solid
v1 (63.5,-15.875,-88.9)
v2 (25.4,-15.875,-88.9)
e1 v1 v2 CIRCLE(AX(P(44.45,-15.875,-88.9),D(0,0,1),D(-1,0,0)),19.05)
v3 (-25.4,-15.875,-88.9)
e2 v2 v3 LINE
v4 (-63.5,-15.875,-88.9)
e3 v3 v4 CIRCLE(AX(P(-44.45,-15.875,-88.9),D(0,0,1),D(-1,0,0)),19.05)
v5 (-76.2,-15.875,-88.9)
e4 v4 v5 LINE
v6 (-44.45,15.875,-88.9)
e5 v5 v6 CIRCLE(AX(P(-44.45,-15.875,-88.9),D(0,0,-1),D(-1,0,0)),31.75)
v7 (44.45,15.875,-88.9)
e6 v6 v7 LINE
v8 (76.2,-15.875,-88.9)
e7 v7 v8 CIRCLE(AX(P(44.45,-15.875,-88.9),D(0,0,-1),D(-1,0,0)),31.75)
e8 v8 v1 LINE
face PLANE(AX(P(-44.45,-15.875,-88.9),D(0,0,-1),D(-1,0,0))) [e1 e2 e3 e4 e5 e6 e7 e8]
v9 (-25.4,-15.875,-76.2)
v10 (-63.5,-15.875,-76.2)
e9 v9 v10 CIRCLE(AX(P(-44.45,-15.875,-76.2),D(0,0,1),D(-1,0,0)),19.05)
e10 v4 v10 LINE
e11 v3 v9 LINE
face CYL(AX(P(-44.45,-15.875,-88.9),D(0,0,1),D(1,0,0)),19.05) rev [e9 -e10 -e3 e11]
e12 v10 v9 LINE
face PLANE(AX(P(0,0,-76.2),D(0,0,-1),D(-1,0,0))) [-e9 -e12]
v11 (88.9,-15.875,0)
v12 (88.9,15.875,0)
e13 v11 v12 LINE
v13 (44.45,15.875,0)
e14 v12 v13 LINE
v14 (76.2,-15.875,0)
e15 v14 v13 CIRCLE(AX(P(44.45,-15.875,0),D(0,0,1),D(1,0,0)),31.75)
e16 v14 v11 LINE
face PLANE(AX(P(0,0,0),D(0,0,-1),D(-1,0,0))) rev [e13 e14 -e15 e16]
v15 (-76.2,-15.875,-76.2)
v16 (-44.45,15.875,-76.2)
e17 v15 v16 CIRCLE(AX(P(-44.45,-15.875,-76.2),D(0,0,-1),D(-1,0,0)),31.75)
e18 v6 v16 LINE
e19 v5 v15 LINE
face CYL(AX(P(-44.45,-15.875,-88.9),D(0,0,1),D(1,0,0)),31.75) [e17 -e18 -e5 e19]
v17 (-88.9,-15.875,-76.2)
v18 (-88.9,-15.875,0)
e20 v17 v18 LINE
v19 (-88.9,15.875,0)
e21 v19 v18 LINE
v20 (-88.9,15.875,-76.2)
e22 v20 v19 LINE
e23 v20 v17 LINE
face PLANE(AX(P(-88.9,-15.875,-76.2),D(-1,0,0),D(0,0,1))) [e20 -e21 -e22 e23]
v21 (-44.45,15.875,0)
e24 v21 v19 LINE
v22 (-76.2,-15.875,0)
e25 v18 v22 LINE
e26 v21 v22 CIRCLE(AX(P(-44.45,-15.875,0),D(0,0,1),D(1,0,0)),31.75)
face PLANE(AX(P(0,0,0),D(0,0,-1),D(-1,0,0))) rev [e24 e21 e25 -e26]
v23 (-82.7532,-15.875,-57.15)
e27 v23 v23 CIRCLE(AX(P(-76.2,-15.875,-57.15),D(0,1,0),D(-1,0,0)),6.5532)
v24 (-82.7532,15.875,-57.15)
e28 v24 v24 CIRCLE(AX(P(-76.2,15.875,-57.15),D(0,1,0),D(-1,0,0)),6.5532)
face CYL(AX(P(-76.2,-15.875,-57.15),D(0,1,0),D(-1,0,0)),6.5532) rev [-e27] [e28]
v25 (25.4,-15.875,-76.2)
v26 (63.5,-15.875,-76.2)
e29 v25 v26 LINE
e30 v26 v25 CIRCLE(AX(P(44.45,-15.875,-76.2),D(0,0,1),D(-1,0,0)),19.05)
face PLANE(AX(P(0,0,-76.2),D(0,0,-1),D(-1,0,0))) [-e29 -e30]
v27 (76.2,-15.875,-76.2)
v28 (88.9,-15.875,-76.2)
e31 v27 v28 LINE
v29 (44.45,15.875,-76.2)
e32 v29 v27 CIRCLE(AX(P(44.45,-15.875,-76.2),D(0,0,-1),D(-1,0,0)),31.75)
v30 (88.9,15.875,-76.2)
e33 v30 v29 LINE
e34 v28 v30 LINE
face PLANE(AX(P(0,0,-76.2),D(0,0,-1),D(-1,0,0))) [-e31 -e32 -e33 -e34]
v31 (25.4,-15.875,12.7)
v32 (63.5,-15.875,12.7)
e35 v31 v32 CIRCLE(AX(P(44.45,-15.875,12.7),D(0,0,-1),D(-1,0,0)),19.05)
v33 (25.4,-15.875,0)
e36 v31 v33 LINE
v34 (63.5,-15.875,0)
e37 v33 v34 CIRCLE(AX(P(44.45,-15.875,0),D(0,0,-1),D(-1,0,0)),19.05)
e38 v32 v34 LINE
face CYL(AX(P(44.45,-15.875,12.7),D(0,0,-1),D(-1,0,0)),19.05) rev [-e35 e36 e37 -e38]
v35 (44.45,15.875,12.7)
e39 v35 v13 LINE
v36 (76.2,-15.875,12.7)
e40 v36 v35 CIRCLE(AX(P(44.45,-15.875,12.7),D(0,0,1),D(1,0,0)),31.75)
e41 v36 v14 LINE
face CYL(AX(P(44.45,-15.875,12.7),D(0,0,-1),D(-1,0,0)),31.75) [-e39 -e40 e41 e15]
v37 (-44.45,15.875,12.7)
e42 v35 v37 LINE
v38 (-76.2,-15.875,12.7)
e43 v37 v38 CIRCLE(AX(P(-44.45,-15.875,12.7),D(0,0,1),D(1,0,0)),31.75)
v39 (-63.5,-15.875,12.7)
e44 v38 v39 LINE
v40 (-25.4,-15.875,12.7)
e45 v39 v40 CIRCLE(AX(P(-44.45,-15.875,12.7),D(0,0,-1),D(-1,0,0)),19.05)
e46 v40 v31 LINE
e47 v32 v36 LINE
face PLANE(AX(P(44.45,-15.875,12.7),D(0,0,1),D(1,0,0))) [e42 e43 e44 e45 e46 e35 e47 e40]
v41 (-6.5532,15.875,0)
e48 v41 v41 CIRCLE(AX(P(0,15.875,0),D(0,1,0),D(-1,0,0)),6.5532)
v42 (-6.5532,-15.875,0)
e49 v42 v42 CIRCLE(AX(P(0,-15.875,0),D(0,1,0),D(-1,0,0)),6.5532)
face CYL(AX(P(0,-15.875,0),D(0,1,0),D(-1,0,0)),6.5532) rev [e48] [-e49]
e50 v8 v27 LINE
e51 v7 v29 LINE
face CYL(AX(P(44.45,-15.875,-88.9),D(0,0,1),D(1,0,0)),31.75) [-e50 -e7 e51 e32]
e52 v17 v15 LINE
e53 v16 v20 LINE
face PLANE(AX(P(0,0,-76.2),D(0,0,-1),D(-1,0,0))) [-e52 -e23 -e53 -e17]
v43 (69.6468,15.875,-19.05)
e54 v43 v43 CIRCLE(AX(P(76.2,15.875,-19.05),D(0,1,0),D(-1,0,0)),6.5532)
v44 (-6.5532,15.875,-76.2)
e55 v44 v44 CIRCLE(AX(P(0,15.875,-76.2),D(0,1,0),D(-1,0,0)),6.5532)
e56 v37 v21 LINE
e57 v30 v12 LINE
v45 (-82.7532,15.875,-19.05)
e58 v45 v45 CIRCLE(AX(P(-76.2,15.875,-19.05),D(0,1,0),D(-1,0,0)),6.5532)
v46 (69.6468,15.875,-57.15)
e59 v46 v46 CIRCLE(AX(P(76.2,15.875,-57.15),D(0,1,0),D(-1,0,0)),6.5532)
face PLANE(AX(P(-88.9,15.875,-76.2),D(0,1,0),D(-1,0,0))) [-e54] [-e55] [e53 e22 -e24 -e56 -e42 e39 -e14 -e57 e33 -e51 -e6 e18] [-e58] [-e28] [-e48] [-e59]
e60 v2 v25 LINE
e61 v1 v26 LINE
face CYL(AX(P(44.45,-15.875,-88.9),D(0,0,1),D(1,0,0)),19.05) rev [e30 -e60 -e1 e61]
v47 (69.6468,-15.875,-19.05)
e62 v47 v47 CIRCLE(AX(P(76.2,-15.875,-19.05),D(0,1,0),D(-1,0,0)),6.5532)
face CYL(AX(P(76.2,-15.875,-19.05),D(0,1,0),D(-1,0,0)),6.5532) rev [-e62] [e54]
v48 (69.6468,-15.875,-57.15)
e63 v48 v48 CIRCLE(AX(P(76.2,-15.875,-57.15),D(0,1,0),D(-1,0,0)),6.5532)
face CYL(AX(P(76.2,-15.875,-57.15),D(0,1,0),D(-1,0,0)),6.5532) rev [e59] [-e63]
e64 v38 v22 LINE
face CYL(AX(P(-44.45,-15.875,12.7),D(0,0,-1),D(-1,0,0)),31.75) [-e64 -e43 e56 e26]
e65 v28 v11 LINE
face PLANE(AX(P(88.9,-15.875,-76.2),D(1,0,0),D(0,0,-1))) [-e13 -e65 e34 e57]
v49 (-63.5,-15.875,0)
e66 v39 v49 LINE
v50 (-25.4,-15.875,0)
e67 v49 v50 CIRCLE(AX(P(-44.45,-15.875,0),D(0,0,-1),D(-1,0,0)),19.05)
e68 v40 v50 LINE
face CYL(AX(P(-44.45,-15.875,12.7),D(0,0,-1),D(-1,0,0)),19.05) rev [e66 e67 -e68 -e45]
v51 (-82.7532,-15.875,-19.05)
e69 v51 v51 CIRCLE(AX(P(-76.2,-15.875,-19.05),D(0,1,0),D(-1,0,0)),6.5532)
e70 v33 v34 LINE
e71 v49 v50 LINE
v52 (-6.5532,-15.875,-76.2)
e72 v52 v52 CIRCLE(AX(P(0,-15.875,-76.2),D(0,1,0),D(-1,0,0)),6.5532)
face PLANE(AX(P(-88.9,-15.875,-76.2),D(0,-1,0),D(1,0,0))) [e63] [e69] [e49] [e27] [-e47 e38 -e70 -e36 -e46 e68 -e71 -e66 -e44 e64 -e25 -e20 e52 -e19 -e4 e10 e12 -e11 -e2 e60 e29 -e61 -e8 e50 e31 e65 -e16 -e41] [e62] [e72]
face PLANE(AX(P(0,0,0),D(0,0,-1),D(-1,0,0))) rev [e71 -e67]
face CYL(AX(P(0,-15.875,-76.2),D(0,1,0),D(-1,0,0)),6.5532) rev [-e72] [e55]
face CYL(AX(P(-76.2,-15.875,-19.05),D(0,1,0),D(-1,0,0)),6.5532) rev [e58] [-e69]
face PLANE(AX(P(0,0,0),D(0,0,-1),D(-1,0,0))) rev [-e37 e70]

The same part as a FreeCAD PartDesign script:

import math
import FreeCAD as App
import Part
import Sketcher
Q = App.Units.Quantity

doc = App.newDocument("Part")
params = doc.addObject("Spreadsheet::Sheet", "Params")
for row, (alias, value) in enumerate([
    ("sketch1_width", "7 in"),
    ("sketch1_height", "1.25 in"),
    ("pad1_length", "3 in"),
    ("sketch2_width", "2 in"),
    ("sketch2_radius", "1.25 in"),
    ("sketch2_radius2", "0.75 in"),
    ("pad2_length", "0.5 in"),
    ("sketch3_width", "2 in"),
    ("sketch3_radius", "1.25 in"),
    ("sketch3_radius2", "0.75 in"),
    ("pad3_length", "0.5 in"),
    ("sketch4_diameter", "0.516 in"),
], start=1):
    params.set(f"A{row}", alias)
    params.set(f"B{row}", "=" + value)
    params.setAlias(f"B{row}", alias)

body = doc.addObject("PartDesign::Body", "Body")

# Sketch on XY plane
sketch1 = body.newObject("Sketcher::SketchObject", "Sketch")
sketch1.AttachmentSupport = (doc.getObject("XY_Plane"), [""])
sketch1.MapMode = "FlatFace"
sketch1.addGeometry([
    Part.LineSegment(App.Vector(-89, 16, 0), App.Vector(-89, -16, 0)),
    Part.LineSegment(App.Vector(-89, -16, 0), App.Vector(89, -16, 0)),
    Part.LineSegment(App.Vector(89, -16, 0), App.Vector(89, 16, 0)),
    Part.LineSegment(App.Vector(89, 16, 0), App.Vector(-89, 16, 0)),
], False)
sketch1.addConstraint([
    Sketcher.Constraint("Coincident", 0, 2, 1, 1),
    Sketcher.Constraint("Coincident", 1, 2, 2, 1),
    Sketcher.Constraint("Coincident", 2, 2, 3, 1),
    Sketcher.Constraint("Coincident", 3, 2, 0, 1),
    Sketcher.Constraint("Vertical", 0),
    Sketcher.Constraint("Horizontal", 1),
    Sketcher.Constraint("Vertical", 2),
    Sketcher.Constraint("Horizontal", 3),
    Sketcher.Constraint("Symmetric", 0, 2, 2, 2, -1, 1),
    Sketcher.Constraint("DistanceX", 1, 1, 1, 2, Q("7 in")),
    Sketcher.Constraint("DistanceY", 0, 2, 0, 1, Q("1.25 in")),
])
sketch1.setExpression("Constraints[9]", "Params.sketch1_width")
sketch1.setExpression("Constraints[10]", "Params.sketch1_height")
pad1 = body.newObject("PartDesign::Pad", "Pad")
pad1.Profile = sketch1
pad1.setExpression("Length", "Params.pad1_length")
pad1.Reversed = True

# Sketch on XY plane
sketch2 = body.newObject("Sketcher::SketchObject", "Sketch001")
sketch2.AttachmentSupport = (doc.getObject("XY_Plane"), [""])
sketch2.MapMode = "FlatFace"
sketch2.addGeometry([
    Part.LineSegment(App.Vector(44, 16, 0), App.Vector(-44, 16, 0)),  # 0
    Part.ArcOfCircle(Part.Circle(App.Vector(-44, -16, 0), App.Vector(0, 0, 1), 32), math.radians(90), math.radians(180)),  # 1
    Part.LineSegment(App.Vector(-76, -16, 0), App.Vector(-64, -16, 0)),  # 2
    Part.ArcOfCircle(Part.Circle(App.Vector(-44, -16, 0), App.Vector(0, 0, 1), 19), math.radians(0), math.radians(180)),  # 3
    Part.LineSegment(App.Vector(-25, -16, 0), App.Vector(25, -16, 0)),  # 4
    Part.ArcOfCircle(Part.Circle(App.Vector(44, -16, 0), App.Vector(0, 0, 1), 19), math.radians(0), math.radians(180)),  # 5
    Part.LineSegment(App.Vector(64, -16, 0), App.Vector(76, -16, 0)),  # 6
    Part.ArcOfCircle(Part.Circle(App.Vector(44, -16, 0), App.Vector(0, 0, 1), 32), math.radians(0), math.radians(90)),  # 7
], False)
sketch2.addConstraint([
    Sketcher.Constraint("Tangent", 0, 2, 1, 1),
    Sketcher.Constraint("Coincident", 1, 2, 2, 1),
    Sketcher.Constraint("Coincident", 2, 2, 3, 2),
    Sketcher.Constraint("Coincident", 3, 1, 4, 1),
    Sketcher.Constraint("Coincident", 4, 2, 5, 2),
    Sketcher.Constraint("Coincident", 5, 1, 6, 1),
    Sketcher.Constraint("Coincident", 6, 2, 7, 1),
    Sketcher.Constraint("Tangent", 7, 2, 0, 1),
    Sketcher.Constraint("Horizontal", 0),
    Sketcher.Constraint("Horizontal", 2),
    Sketcher.Constraint("Horizontal", 4),
    Sketcher.Constraint("Horizontal", 6),
    Sketcher.Constraint("Coincident", 3, 3, 1, 3),
    Sketcher.Constraint("Coincident", 7, 3, 5, 3),
    Sketcher.Constraint("Equal", 3, 5),
    Sketcher.Constraint("Equal", 1, 7),
    Sketcher.Constraint("Symmetric", 2, 2, 5, 1, -2),
    Sketcher.Constraint("Horizontal", 7, 3, 1, 2),
    Sketcher.Constraint("Horizontal", 2, 2, 3, 1),
    Sketcher.Constraint("DistanceX", 4, 1, 4, 2, Q("2 in")),
    Sketcher.Constraint("Radius", 1, Q("1.25 in")),
    Sketcher.Constraint("Radius", 3, Q("0.75 in")),
    Sketcher.Constraint("DistanceY", 1, 3, -1, 1, Q("0.625 in")),
])
sketch2.setExpression("Constraints[19]", "Params.sketch2_width")
sketch2.setExpression("Constraints[20]", "Params.sketch2_radius")
sketch2.setExpression("Constraints[21]", "Params.sketch2_radius2")
pad2 = body.newObject("PartDesign::Pad", "Pad001")
pad2.Profile = sketch2
pad2.setExpression("Length", "Params.pad2_length")

# Sketch on XY plane
sketch3 = body.newObject("Sketcher::SketchObject", "Sketch002")
sketch3.AttachmentSupport = (doc.getObject("XY_Plane"), [""])
sketch3.MapMode = "FlatFace"
sketch3.AttachmentOffset = App.Placement(App.Vector(0, 0, -3 * 25.4), App.Rotation())
sketch3.addGeometry([
    Part.LineSegment(App.Vector(-64, -16, 0), App.Vector(-76, -16, 0)),  # 0
    Part.ArcOfCircle(Part.Circle(App.Vector(-44, -16, 0), App.Vector(0, 0, 1), 32), math.radians(90), math.radians(180)),  # 1
    Part.LineSegment(App.Vector(-44, 16, 0), App.Vector(44, 16, 0)),  # 2
    Part.ArcOfCircle(Part.Circle(App.Vector(44, -16, 0), App.Vector(0, 0, 1), 32), math.radians(0), math.radians(90)),  # 3
    Part.LineSegment(App.Vector(76, -16, 0), App.Vector(64, -16, 0)),  # 4
    Part.ArcOfCircle(Part.Circle(App.Vector(44, -16, 0), App.Vector(0, 0, 1), 19), math.radians(0), math.radians(180)),  # 5
    Part.LineSegment(App.Vector(25, -16, 0), App.Vector(-25, -16, 0)),  # 6
    Part.ArcOfCircle(Part.Circle(App.Vector(-44, -16, 0), App.Vector(0, 0, 1), 19), math.radians(0), math.radians(180)),  # 7
], False)
sketch3.addConstraint([
    Sketcher.Constraint("Coincident", 0, 2, 1, 2),
    Sketcher.Constraint("Tangent", 1, 1, 2, 1),
    Sketcher.Constraint("Tangent", 2, 2, 3, 2),
    Sketcher.Constraint("Coincident", 3, 1, 4, 1),
    Sketcher.Constraint("Coincident", 4, 2, 5, 1),
    Sketcher.Constraint("Coincident", 5, 2, 6, 1),
    Sketcher.Constraint("Coincident", 6, 2, 7, 1),
    Sketcher.Constraint("Coincident", 7, 2, 0, 1),
    Sketcher.Constraint("Horizontal", 0),
    Sketcher.Constraint("Horizontal", 2),
    Sketcher.Constraint("Horizontal", 4),
    Sketcher.Constraint("Horizontal", 6),
    Sketcher.Constraint("Coincident", 5, 3, 3, 3),
    Sketcher.Constraint("Coincident", 7, 3, 1, 3),
    Sketcher.Constraint("Equal", 1, 3),
    Sketcher.Constraint("Equal", 5, 7),
    Sketcher.Constraint("Symmetric", 0, 2, 3, 1, -2),
    Sketcher.Constraint("Horizontal", 7, 3, 0, 2),
    Sketcher.Constraint("Horizontal", 4, 2, 5, 2),
    Sketcher.Constraint("DistanceX", 6, 2, 6, 1, Q("2 in")),
    Sketcher.Constraint("Radius", 1, Q("1.25 in")),
    Sketcher.Constraint("Radius", 5, Q("0.75 in")),
    Sketcher.Constraint("DistanceY", 1, 3, -1, 1, Q("0.625 in")),
])
sketch3.setExpression("Constraints[19]", "Params.sketch3_width")
sketch3.setExpression("Constraints[20]", "Params.sketch3_radius")
sketch3.setExpression("Constraints[21]", "Params.sketch3_radius2")
pad3 = body.newObject("PartDesign::Pad", "Pad002")
pad3.Profile = sketch3
pad3.setExpression("Length", "Params.pad3_length")
pad3.Reversed = True

# Sketch on XZ plane
sketch4 = body.newObject("Sketcher::SketchObject", "Sketch003")
sketch4.AttachmentSupport = (doc.getObject("XZ_Plane"), [""])
sketch4.MapMode = "FlatFace"
sketch4.AttachmentOffset = App.Placement(App.Vector(0, 0, -0.625 * 25.4), App.Rotation())
sketch4.addGeometry([
    Part.Circle(App.Vector(-76, -19, 0), App.Vector(0, 0, 1), 7),  # 0
    Part.Circle(App.Vector(-76, -57, 0), App.Vector(0, 0, 1), 7),  # 1
    Part.Circle(App.Vector(76, -57, 0), App.Vector(0, 0, 1), 7),  # 2
    Part.Circle(App.Vector(76, -19, 0), App.Vector(0, 0, 1), 7),  # 3
    Part.Circle(App.Vector(0, 0, 0), App.Vector(0, 0, 1), 7),  # 4
    Part.Circle(App.Vector(0, -76, 0), App.Vector(0, 0, 1), 7),  # 5
], False)
sketch4.addConstraint([
    Sketcher.Constraint("Coincident", 4, 3, -1, 1),
    Sketcher.Constraint("Equal", 0, 1),
    Sketcher.Constraint("Equal", 1, 2),
    Sketcher.Constraint("Equal", 2, 3),
    Sketcher.Constraint("Equal", 3, 4),
    Sketcher.Constraint("Equal", 4, 5),
    Sketcher.Constraint("Symmetric", 1, 3, 2, 3, -2),
    Sketcher.Constraint("Symmetric", 0, 3, 3, 3, -2),
    Sketcher.Constraint("PointOnObject", 5, 3, -2),
    Sketcher.Constraint("Vertical", 0, 3, 1, 3),
    Sketcher.Constraint("Diameter", 0, Q("0.516 in")),
    Sketcher.Constraint("DistanceX", 0, 3, -1, 1, Q("3 in")),
    Sketcher.Constraint("DistanceY", 5, 3, -1, 1, Q("3 in")),
    Sketcher.Constraint("DistanceY", 1, 3, 0, 3, Q("1.5 in")),
    Sketcher.Constraint("DistanceY", 0, 3, -1, 1, Q("0.75 in")),
])
sketch4.setExpression("Constraints[10]", "Params.sketch4_diameter")
pocket1 = body.newObject("PartDesign::Pocket", "Pocket")
pocket1.Profile = sketch4
pocket1.Type = "ThroughAll"
pocket1.Reversed = True

doc.recompute()
